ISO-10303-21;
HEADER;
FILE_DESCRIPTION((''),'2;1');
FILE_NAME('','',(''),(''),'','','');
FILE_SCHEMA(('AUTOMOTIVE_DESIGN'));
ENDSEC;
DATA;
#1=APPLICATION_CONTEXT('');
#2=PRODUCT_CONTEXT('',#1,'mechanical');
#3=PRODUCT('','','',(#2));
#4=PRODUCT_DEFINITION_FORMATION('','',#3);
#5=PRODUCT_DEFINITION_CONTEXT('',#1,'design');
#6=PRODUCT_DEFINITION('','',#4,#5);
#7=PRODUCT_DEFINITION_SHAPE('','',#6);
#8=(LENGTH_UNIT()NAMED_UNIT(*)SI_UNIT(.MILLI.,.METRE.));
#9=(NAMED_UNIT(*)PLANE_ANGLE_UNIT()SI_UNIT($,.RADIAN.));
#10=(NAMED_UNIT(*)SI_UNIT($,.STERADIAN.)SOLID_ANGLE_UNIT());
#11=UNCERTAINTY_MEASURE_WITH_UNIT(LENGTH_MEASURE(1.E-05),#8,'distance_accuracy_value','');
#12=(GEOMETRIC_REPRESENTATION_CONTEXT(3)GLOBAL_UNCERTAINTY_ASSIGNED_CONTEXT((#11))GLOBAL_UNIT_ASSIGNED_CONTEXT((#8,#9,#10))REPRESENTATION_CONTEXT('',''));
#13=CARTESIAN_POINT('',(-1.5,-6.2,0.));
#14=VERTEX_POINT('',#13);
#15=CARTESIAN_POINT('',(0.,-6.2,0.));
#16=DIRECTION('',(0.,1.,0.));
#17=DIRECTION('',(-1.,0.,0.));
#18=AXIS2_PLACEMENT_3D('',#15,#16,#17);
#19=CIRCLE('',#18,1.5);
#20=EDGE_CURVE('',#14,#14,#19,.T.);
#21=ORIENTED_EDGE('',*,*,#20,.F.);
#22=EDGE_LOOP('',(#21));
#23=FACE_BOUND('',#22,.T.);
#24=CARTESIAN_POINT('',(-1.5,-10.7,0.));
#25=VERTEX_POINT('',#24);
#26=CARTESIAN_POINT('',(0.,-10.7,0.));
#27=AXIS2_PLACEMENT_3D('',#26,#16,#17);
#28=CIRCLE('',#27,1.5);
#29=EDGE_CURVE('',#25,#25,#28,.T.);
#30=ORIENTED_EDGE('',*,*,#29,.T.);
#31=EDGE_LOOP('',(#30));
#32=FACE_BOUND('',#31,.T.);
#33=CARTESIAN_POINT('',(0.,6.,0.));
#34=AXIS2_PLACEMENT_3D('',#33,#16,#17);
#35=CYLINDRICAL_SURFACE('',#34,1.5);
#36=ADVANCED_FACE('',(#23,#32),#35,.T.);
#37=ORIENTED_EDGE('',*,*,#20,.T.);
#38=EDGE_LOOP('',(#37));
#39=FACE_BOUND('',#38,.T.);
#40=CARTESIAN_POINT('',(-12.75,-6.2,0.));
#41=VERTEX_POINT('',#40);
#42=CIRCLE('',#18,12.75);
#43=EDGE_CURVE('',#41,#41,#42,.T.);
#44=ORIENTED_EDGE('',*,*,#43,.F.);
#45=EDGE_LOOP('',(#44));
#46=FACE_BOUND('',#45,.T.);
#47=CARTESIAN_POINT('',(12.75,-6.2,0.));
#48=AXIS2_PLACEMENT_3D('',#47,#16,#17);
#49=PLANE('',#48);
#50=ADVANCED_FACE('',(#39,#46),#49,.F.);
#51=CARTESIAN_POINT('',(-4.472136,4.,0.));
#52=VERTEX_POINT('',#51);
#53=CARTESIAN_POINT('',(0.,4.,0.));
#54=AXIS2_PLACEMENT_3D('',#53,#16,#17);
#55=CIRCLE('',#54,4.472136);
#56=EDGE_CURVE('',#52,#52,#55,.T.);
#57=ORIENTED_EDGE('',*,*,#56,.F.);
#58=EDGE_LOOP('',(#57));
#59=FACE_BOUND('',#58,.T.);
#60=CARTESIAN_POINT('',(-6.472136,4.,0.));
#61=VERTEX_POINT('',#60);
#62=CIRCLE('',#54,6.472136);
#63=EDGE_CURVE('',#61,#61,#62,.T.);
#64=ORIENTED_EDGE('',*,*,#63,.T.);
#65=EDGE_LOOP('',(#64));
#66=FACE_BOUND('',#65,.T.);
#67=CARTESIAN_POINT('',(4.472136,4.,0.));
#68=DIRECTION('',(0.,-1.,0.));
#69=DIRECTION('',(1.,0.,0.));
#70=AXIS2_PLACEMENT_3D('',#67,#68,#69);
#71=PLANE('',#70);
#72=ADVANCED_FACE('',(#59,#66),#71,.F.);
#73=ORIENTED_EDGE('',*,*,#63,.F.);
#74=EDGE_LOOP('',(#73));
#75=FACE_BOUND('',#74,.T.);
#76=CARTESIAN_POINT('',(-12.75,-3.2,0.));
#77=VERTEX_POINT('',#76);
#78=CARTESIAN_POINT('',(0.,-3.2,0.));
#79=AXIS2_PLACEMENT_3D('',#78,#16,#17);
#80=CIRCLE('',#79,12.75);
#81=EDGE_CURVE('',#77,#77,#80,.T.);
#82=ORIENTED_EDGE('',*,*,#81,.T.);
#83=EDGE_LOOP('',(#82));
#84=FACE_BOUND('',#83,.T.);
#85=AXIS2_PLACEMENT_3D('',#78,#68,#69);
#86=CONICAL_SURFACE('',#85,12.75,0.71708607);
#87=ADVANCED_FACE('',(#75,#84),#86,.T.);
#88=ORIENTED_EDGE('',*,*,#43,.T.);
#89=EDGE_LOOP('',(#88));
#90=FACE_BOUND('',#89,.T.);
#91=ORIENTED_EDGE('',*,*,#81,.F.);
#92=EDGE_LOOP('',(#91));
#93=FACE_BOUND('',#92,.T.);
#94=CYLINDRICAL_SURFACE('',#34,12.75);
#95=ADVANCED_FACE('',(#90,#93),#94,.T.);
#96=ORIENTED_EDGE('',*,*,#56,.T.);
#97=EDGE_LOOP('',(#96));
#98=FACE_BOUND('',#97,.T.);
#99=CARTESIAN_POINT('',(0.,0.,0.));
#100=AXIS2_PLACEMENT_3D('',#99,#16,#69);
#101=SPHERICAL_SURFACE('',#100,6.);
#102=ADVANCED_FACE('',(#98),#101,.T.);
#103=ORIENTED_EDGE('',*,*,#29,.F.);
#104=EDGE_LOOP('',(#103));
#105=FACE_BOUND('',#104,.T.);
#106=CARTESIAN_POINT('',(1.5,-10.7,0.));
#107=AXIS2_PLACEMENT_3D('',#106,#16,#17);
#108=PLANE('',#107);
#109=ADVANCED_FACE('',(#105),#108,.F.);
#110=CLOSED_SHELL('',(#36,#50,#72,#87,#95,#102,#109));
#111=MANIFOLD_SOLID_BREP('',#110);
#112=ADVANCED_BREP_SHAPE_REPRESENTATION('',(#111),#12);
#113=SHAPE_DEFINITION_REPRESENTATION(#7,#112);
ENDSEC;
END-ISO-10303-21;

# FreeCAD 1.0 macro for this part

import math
import FreeCAD as App
import Part
import Sketcher

doc = App.newDocument("Part")
body = doc.addObject("PartDesign::Body", "Body")

# Sketch on XY plane
sketch1 = doc.addObject("Sketcher::SketchObject", "Sketch")
body.addObject(sketch1)
sketch1.AttachmentSupport = (doc.XY_Plane, [""])
sketch1.MapMode = "FlatFace"
sketch1.addGeometry([
    Part.LineSegment(App.Vector(12.8, -6.2, 0), App.Vector(12.8, -3.2, 0)),  # 0
    Part.LineSegment(App.Vector(12.8, -3.2, 0), App.Vector(6.5, 4, 0)),  # 1
    Part.LineSegment(App.Vector(6.5, 4, 0), App.Vector(4.5, 4, 0)),  # 2
    Part.ArcOfCircle(Part.Circle(App.Vector(0, 0, 0), App.Vector(0, 0, 1), 6), math.radians(42), math.radians(90)),  # 3
    Part.LineSegment(App.Vector(0, 6, 0), App.Vector(0, -10.7, 0)),  # 4
    Part.LineSegment(App.Vector(0, -10.7, 0), App.Vector(1.5, -10.7, 0)),  # 5
    Part.LineSegment(App.Vector(1.5, -10.7, 0), App.Vector(1.5, -6.2, 0)),  # 6
    Part.LineSegment(App.Vector(1.5, -6.2, 0), App.Vector(12.8, -6.2, 0)),  # 7
], False)
sketch1.addConstraint([
    Sketcher.Constraint("Coincident", 0, 2, 1, 1),
    Sketcher.Constraint("Coincident", 1, 2, 2, 1),
    Sketcher.Constraint("Coincident", 2, 2, 3, 1),
    Sketcher.Constraint("Coincident", 3, 2, 4, 1),
    Sketcher.Constraint("Coincident", 4, 2, 5, 1),
    Sketcher.Constraint("Coincident", 5, 2, 6, 1),
    Sketcher.Constraint("Coincident", 6, 2, 7, 1),
    Sketcher.Constraint("Coincident", 7, 2, 0, 1),
    Sketcher.Constraint("Vertical", 0),
    Sketcher.Constraint("Horizontal", 2),
    Sketcher.Constraint("Vertical", 4),
    Sketcher.Constraint("Horizontal", 5),
    Sketcher.Constraint("Vertical", 6),
    Sketcher.Constraint("Horizontal", 7),
    Sketcher.Constraint("Coincident", 3, 3, -1, 1),
    Sketcher.Constraint("PointOnObject", 3, 2, -2),
    Sketcher.Constraint("Radius", 3, 6.0),
    Sketcher.Constraint("DistanceX", 2, 2, 2, 1, 2.0),
    Sketcher.Constraint("DistanceY", 0, 1, 0, 2, 3.0),
    Sketcher.Constraint("DistanceX", 5, 1, 5, 2, 1.5),
    Sketcher.Constraint("DistanceY", 4, 2, 4, 1, 16.7),
    Sketcher.Constraint("DistanceY", 6, 1, 6, 2, 4.5),
    Sketcher.Constraint("DistanceY", -1, 1, 1, 2, 4.0),
    Sketcher.Constraint("DistanceX", 7, 1, 7, 2, 11.25),
])
revolution = doc.addObject("PartDesign::Revolution", "Revolution")
body.addObject(revolution)
revolution.Profile = sketch1
revolution.ReferenceAxis = (sketch1, ["V_Axis"])
revolution.Angle = 360

doc.recompute()
